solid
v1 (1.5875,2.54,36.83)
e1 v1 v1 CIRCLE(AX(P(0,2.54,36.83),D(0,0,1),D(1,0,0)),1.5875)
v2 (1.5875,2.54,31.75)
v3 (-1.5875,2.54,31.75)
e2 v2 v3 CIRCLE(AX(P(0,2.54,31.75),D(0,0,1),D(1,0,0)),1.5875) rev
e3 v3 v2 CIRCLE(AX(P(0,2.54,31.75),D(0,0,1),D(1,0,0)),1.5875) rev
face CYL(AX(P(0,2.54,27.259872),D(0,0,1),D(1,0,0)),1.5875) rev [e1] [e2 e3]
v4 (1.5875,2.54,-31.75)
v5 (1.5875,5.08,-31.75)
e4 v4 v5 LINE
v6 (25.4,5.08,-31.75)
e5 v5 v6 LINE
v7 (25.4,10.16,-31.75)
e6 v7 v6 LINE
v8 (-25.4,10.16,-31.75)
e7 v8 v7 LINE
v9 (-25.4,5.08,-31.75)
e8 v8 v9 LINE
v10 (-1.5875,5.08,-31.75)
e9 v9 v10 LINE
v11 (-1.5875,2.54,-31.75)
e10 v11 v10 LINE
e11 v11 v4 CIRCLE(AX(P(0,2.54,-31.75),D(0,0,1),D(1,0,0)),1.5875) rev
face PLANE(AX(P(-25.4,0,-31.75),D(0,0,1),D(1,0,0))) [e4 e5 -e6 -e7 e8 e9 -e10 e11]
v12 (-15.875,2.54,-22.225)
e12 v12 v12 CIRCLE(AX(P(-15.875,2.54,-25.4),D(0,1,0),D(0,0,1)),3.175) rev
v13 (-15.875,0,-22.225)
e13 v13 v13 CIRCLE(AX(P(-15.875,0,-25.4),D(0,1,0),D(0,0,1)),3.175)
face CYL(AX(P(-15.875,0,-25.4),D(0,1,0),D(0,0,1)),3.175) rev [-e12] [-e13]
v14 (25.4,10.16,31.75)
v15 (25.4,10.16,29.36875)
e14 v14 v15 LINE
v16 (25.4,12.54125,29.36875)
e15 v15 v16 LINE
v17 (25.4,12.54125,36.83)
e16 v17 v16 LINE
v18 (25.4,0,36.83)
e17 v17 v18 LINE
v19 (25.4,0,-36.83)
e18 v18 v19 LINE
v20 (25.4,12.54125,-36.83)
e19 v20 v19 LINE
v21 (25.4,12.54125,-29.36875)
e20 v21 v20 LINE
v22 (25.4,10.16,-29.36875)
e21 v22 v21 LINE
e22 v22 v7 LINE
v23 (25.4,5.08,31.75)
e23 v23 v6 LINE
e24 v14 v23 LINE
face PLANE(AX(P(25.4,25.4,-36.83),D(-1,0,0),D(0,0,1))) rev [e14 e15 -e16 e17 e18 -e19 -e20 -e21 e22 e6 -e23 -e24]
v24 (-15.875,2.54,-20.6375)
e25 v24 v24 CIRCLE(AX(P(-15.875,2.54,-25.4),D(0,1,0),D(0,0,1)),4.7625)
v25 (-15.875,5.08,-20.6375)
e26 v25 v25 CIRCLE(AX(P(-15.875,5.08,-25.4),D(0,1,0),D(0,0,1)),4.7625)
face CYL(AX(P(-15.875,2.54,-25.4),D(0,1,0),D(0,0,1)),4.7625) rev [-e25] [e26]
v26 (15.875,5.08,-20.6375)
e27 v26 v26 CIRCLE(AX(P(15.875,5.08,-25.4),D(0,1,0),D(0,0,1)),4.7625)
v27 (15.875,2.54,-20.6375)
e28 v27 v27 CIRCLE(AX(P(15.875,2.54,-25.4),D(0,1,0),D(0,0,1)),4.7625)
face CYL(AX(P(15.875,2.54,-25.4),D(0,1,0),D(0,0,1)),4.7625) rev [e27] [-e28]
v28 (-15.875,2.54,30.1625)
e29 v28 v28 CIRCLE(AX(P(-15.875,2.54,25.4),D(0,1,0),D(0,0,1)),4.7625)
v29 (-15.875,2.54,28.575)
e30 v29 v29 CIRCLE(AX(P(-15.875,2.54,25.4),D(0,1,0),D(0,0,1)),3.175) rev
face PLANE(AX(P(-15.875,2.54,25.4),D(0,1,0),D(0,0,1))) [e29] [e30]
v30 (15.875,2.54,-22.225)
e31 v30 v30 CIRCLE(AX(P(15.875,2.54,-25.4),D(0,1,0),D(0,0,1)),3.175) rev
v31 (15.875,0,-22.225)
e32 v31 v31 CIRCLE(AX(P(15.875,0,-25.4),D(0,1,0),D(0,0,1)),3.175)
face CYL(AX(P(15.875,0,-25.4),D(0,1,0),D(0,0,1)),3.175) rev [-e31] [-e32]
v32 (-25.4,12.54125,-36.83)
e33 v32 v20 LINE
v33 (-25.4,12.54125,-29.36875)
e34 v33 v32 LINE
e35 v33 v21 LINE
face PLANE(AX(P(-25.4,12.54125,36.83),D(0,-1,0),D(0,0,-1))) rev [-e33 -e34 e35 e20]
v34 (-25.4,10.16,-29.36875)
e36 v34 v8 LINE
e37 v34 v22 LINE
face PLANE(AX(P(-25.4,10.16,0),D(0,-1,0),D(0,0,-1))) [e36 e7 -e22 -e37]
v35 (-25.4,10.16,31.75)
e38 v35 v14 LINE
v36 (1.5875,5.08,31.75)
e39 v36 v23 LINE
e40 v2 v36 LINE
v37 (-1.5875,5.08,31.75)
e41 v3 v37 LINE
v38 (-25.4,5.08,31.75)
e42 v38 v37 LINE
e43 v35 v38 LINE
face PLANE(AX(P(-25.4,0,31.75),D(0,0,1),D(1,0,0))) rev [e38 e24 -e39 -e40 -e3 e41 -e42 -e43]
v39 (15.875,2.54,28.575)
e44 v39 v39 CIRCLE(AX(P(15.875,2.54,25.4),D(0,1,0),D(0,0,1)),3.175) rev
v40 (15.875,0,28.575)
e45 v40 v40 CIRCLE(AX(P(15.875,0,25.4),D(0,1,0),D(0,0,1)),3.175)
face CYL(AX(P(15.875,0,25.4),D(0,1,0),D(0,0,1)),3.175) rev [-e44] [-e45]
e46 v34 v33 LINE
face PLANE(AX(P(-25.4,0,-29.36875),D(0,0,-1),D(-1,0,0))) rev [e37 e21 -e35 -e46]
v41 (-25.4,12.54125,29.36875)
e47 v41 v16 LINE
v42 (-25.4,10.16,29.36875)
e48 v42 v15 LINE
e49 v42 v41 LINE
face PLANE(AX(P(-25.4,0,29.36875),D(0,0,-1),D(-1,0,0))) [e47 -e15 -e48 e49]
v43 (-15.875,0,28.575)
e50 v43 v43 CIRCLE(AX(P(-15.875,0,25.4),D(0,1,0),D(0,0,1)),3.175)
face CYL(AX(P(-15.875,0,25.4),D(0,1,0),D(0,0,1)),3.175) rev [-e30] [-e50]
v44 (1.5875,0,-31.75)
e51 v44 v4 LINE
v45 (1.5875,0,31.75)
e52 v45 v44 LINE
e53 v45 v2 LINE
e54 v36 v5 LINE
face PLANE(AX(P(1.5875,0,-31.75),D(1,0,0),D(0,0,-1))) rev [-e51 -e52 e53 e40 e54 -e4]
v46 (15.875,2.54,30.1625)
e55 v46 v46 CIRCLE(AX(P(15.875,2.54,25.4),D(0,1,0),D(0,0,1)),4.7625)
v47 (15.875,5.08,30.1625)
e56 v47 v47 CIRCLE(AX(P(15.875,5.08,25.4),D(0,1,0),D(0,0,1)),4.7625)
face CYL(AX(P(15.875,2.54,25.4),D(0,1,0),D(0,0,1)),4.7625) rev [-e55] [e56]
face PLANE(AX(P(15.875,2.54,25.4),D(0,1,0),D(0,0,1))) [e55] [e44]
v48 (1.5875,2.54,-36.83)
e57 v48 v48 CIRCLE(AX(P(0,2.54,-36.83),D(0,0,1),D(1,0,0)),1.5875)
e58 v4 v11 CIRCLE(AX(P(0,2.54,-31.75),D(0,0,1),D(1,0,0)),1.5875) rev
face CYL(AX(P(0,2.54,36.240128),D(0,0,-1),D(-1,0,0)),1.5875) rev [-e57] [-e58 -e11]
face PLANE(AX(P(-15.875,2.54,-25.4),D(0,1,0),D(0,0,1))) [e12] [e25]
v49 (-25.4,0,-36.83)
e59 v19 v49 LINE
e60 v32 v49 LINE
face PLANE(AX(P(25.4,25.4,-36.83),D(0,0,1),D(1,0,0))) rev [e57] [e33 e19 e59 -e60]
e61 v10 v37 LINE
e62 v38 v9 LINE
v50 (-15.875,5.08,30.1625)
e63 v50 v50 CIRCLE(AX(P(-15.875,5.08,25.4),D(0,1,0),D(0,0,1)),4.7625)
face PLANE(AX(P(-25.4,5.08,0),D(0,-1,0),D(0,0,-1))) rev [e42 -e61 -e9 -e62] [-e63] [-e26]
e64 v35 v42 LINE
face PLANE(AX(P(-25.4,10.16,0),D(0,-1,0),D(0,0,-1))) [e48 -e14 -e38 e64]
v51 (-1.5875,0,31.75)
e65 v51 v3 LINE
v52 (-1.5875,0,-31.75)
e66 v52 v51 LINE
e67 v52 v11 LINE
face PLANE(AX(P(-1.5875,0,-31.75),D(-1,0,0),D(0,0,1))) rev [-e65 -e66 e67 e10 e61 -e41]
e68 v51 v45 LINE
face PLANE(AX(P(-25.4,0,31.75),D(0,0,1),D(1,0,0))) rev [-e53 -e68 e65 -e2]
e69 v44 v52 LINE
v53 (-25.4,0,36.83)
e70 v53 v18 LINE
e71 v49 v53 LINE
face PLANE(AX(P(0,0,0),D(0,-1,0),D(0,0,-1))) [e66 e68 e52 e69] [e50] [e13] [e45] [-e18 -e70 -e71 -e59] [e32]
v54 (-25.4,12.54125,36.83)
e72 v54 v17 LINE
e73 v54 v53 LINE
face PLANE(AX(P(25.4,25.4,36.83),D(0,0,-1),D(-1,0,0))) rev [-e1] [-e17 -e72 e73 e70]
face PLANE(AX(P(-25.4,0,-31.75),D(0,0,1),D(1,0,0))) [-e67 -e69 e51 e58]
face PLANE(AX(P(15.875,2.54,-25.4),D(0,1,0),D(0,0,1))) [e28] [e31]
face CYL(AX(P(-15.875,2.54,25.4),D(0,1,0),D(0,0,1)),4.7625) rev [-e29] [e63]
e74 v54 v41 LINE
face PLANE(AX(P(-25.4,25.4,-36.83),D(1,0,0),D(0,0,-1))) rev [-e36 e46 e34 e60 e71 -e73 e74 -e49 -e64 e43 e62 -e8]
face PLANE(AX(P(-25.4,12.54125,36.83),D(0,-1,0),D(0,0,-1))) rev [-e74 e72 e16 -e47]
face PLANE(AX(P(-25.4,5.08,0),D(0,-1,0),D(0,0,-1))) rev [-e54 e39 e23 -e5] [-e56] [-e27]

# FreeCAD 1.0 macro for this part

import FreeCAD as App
import Part
import Sketcher
from FreeCAD import Vector
Q = App.Units.Quantity

doc = App.newDocument("Part")
body = doc.addObject("PartDesign::Body", "Body")

# Sketch on XZ plane
sketch1 = body.newObject("Sketcher::SketchObject", "Sketch")
sketch1.AttachmentSupport = (doc.getObject("XZ_Plane"), [""])
sketch1.MapMode = "FlatFace"
sketch1.addGeometry([
    Part.LineSegment(Vector(-25.4, -36.83, 0), Vector(-25.4, 36.83, 0)),
    Part.LineSegment(Vector(-25.4, 36.83, 0), Vector(25.4, 36.83, 0)),
    Part.LineSegment(Vector(25.4, 36.83, 0), Vector(25.4, -36.83, 0)),
    Part.LineSegment(Vector(25.4, -36.83, 0), Vector(-25.4, -36.83, 0)),
], False)
sketch1.addConstraint([
    Sketcher.Constraint("Coincident", 0, 2, 1, 1),
    Sketcher.Constraint("Coincident", 1, 2, 2, 1),
    Sketcher.Constraint("Coincident", 2, 2, 3, 1),
    Sketcher.Constraint("Coincident", 3, 2, 0, 1),
    Sketcher.Constraint("Vertical", 0),
    Sketcher.Constraint("Horizontal", 1),
    Sketcher.Constraint("Vertical", 2),
    Sketcher.Constraint("Horizontal", 3),
    Sketcher.Constraint("Symmetric", 0, 2, 2, 2, -1, 1),
    Sketcher.Constraint("DistanceX", 1, 1, 1, 2, Q("2 in")),
    Sketcher.Constraint("DistanceY", 0, 1, 0, 2, Q("2.9 in")),
])
pad1 = body.newObject("PartDesign::Pad", "Pad")
pad1.Profile = sketch1
pad1.Length = Q("1 in")
pad1.Reversed = True

# Sketch on YZ plane
sketch2 = body.newObject("Sketcher::SketchObject", "Sketch001")
sketch2.AttachmentSupport = (doc.getObject("YZ_Plane"), [""])
sketch2.MapMode = "FlatFace"
sketch2.AttachmentOffset = App.Placement(Vector(0, 0, 1 * 25.4), App.Rotation())
sketch2.addGeometry([
    Part.LineSegment(Vector(10.16, 31.75, 0), Vector(5.08, 31.75, 0)),  # 0
    Part.LineSegment(Vector(5.08, 31.75, 0), Vector(5.08, -31.75, 0)),  # 1
    Part.LineSegment(Vector(5.08, -31.75, 0), Vector(10.16, -31.75, 0)),  # 2
    Part.LineSegment(Vector(10.16, -31.75, 0), Vector(10.16, -29.36875, 0)),  # 3
    Part.LineSegment(Vector(10.16, -29.36875, 0), Vector(12.54125, -29.36875, 0)),  # 4
    Part.LineSegment(Vector(12.54125, -29.36875, 0), Vector(12.54125, 29.36875, 0)),  # 5
    Part.LineSegment(Vector(12.54125, 29.36875, 0), Vector(10.16, 29.36875, 0)),  # 6
    Part.LineSegment(Vector(10.16, 29.36875, 0), Vector(10.16, 31.75, 0)),  # 7
], False)
sketch2.addConstraint([
    Sketcher.Constraint("Coincident", 0, 2, 1, 1),
    Sketcher.Constraint("Coincident", 1, 2, 2, 1),
    Sketcher.Constraint("Coincident", 2, 2, 3, 1),
    Sketcher.Constraint("Coincident", 3, 2, 4, 1),
    Sketcher.Constraint("Coincident", 4, 2, 5, 1),
    Sketcher.Constraint("Coincident", 5, 2, 6, 1),
    Sketcher.Constraint("Coincident", 6, 2, 7, 1),
    Sketcher.Constraint("Coincident", 7, 2, 0, 1),
    Sketcher.Constraint("Horizontal", 0),
    Sketcher.Constraint("Vertical", 1),
    Sketcher.Constraint("Horizontal", 2),
    Sketcher.Constraint("Vertical", 3),
    Sketcher.Constraint("Horizontal", 4),
    Sketcher.Constraint("Vertical", 5),
    Sketcher.Constraint("Horizontal", 6),
    Sketcher.Constraint("Vertical", 7),
    Sketcher.Constraint("Symmetric", 3, 2, 6, 2, -1),
    Sketcher.Constraint("Equal", 6, 3),
    Sketcher.Constraint("Equal", 3, 7),
    Sketcher.Constraint("DistanceX", 0, 2, 0, 1, Q("0.2 in")),
    Sketcher.Constraint("DistanceY", 1, 2, 1, 1, Q("2.5 in")),
    Sketcher.Constraint("DistanceX", -1, 1, 0, 2, Q("0.2 in")),
    Sketcher.Constraint("DistanceX", 4, 1, 4, 2, Q("0.09375 in")),
])
pocket1 = body.newObject("PartDesign::Pocket", "Pocket")
pocket1.Profile = sketch2
pocket1.Type = "ThroughAll"

# Sketch on YZ plane
sketch3 = body.newObject("Sketcher::SketchObject", "Sketch002")
sketch3.AttachmentSupport = (doc.getObject("YZ_Plane"), [""])
sketch3.MapMode = "FlatFace"
sketch3.AttachmentOffset = App.Placement(Vector(0, 0, 1 * 25.4), App.Rotation())
sketch3.addGeometry([
    Part.LineSegment(Vector(25.4, 36.83, 0), Vector(12.54125, 36.83, 0)),
    Part.LineSegment(Vector(12.54125, 36.83, 0), Vector(12.54125, -36.83, 0)),
    Part.LineSegment(Vector(12.54125, -36.83, 0), Vector(25.4, -36.83, 0)),
    Part.LineSegment(Vector(25.4, -36.83, 0), Vector(25.4, 36.83, 0)),
], False)
sketch3.addConstraint([
    Sketcher.Constraint("Coincident", 0, 2, 1, 1),
    Sketcher.Constraint("Coincident", 1, 2, 2, 1),
    Sketcher.Constraint("Coincident", 2, 2, 3, 1),
    Sketcher.Constraint("Coincident", 3, 2, 0, 1),
    Sketcher.Constraint("Horizontal", 0),
    Sketcher.Constraint("Vertical", 1),
    Sketcher.Constraint("Horizontal", 2),
    Sketcher.Constraint("Vertical", 3),
    Sketcher.Constraint("DistanceY", 1, 2, 1, 1, Q("2.9 in")),
    Sketcher.Constraint("DistanceX", -1, 1, 2, 2, Q("1 in")),
    Sketcher.Constraint("DistanceY", -1, 1, 0, 2, Q("1.45 in")),
    Sketcher.Constraint("DistanceX", 0, 2, 0, 1, 12.85875),
])
pocket2 = body.newObject("PartDesign::Pocket", "Pocket001")
pocket2.Profile = sketch3
pocket2.Type = "ThroughAll"

# Sketch on XZ plane
sketch4 = body.newObject("Sketcher::SketchObject", "Sketch003")
sketch4.AttachmentSupport = (doc.getObject("XZ_Plane"), [""])
sketch4.MapMode = "FlatFace"
sketch4.AttachmentOffset = App.Placement(Vector(0, 0, -0.2 * 25.4), App.Rotation())
sketch4.addGeometry([
    Part.LineSegment(Vector(-1.5875, -31.75, 0), Vector(-1.5875, 31.75, 0)),
    Part.LineSegment(Vector(-1.5875, 31.75, 0), Vector(1.5875, 31.75, 0)),
    Part.LineSegment(Vector(1.5875, 31.75, 0), Vector(1.5875, -31.75, 0)),
    Part.LineSegment(Vector(1.5875, -31.75, 0), Vector(-1.5875, -31.75, 0)),
], False)
sketch4.addConstraint([
    Sketcher.Constraint("Coincident", 0, 2, 1, 1),
    Sketcher.Constraint("Coincident", 1, 2, 2, 1),
    Sketcher.Constraint("Coincident", 2, 2, 3, 1),
    Sketcher.Constraint("Coincident", 3, 2, 0, 1),
    Sketcher.Constraint("Vertical", 0),
    Sketcher.Constraint("Horizontal", 1),
    Sketcher.Constraint("Vertical", 2),
    Sketcher.Constraint("Horizontal", 3),
    Sketcher.Constraint("Symmetric", 0, 2, 2, 2, -1, 1),
    Sketcher.Constraint("DistanceY", 0, 1, 0, 2, Q("2.5 in")),
    Sketcher.Constraint("DistanceX", 1, 1, 1, 2, Q("0.125 in")),
])
pocket3 = body.newObject("PartDesign::Pocket", "Pocket002")
pocket3.Profile = sketch4
pocket3.Type = "ThroughAll"
pocket3.Reversed = True

# Sketch on XZ plane
sketch5 = body.newObject("Sketcher::SketchObject", "Sketch004")
sketch5.AttachmentSupport = (doc.getObject("XZ_Plane"), [""])
sketch5.MapMode = "FlatFace"
sketch5.AttachmentOffset = App.Placement(Vector(0, 0, -0.2 * 25.4), App.Rotation())
sketch5.addGeometry([
    Part.Circle(Vector(15.875, -25.4, 0), Vector(0, 0, 1), 3.175),
    Part.Circle(Vector(-15.875, -25.4, 0), Vector(0, 0, 1), 3.175),
    Part.Circle(Vector(-15.875, 25.4, 0), Vector(0, 0, 1), 3.175),
    Part.Circle(Vector(15.875, 25.4, 0), Vector(0, 0, 1), 3.175),
], False)
sketch5.addConstraint([
    Sketcher.Constraint("Equal", 0, 1),
    Sketcher.Constraint("Equal", 1, 2),
    Sketcher.Constraint("Equal", 2, 3),
    Sketcher.Constraint("Symmetric", 0, 3, 2, 3, -1, 1),
    Sketcher.Constraint("Symmetric", 1, 3, 3, 3, -1, 1),
    Sketcher.Constraint("Symmetric", 0, 3, 1, 3, -2),
    Sketcher.Constraint("Diameter", 0, Q("0.25 in")),
    Sketcher.Constraint("DistanceY", 0, 3, -1, 1, Q("1 in")),
    Sketcher.Constraint("DistanceX", 1, 3, 0, 3, Q("1.25 in")),
])
pocket4 = body.newObject("PartDesign::Pocket", "Pocket003")
pocket4.Profile = sketch5
pocket4.Type = "ThroughAll"
pocket4.Reversed = True

# Sketch on XZ plane
sketch6 = body.newObject("Sketcher::SketchObject", "Sketch005")
sketch6.AttachmentSupport = (doc.getObject("XZ_Plane"), [""])
sketch6.MapMode = "FlatFace"
sketch6.AttachmentOffset = App.Placement(Vector(0, 0, -0.2 * 25.4), App.Rotation())
sketch6.addGeometry([
    Part.Circle(Vector(-15.875, -25.4, 0), Vector(0, 0, 1), 4.7625),
    Part.Circle(Vector(-15.875, 25.4, 0), Vector(0, 0, 1), 4.7625),
    Part.Circle(Vector(15.875, 25.4, 0), Vector(0, 0, 1), 4.7625),
    Part.Circle(Vector(15.875, -25.4, 0), Vector(0, 0, 1), 4.7625),
], False)
sketch6.addConstraint([
    Sketcher.Constraint("Equal", 0, 1),
    Sketcher.Constraint("Equal", 1, 2),
    Sketcher.Constraint("Equal", 2, 3),
    Sketcher.Constraint("Symmetric", 0, 3, 2, 3, -1, 1),
    Sketcher.Constraint("Symmetric", 1, 3, 3, 3, -1, 1),
    Sketcher.Constraint("Symmetric", 1, 3, 2, 3, -2),
    Sketcher.Constraint("Diameter", 0, Q("0.375 in")),
    Sketcher.Constraint("DistanceY", 0, 3, -1, 1, Q("1 in")),
    Sketcher.Constraint("DistanceX", 1, 3, 2, 3, Q("1.25 in")),
])
pocket5 = body.newObject("PartDesign::Pocket", "Pocket004")
pocket5.Profile = sketch6
pocket5.Length = Q("0.1 in")
pocket5.Reversed = True

# Sketch on XY plane
sketch7 = body.newObject("Sketcher::SketchObject", "Sketch006")
sketch7.AttachmentSupport = (doc.getObject("XY_Plane"), [""])
sketch7.MapMode = "FlatFace"
sketch7.AttachmentOffset = App.Placement(Vector(0, 0, 1.45 * 25.4), App.Rotation())
sketch7.addGeometry(Part.Circle(Vector(0, 2.54, 0), Vector(0, 0, 1), 1.5875), False)
sketch7.addConstraint([
    Sketcher.Constraint("PointOnObject", 0, 3, -2),
    Sketcher.Constraint("Diameter", 0, Q("0.125 in")),
    Sketcher.Constraint("DistanceY", -1, 1, 0, 3, Q("0.1 in")),
])
pocket6 = body.newObject("PartDesign::Pocket", "Pocket005")
pocket6.Profile = sketch7
pocket6.Length = Q("2.7 in")
doc.recompute()

mirrored = body.newObject("PartDesign::Mirrored", "Mirrored")
mirrored.Originals = [pocket6]
mirrored.MirrorPlane = (doc.getObject("XY_Plane"), [""])
body.Tip = mirrored

doc.recompute()
